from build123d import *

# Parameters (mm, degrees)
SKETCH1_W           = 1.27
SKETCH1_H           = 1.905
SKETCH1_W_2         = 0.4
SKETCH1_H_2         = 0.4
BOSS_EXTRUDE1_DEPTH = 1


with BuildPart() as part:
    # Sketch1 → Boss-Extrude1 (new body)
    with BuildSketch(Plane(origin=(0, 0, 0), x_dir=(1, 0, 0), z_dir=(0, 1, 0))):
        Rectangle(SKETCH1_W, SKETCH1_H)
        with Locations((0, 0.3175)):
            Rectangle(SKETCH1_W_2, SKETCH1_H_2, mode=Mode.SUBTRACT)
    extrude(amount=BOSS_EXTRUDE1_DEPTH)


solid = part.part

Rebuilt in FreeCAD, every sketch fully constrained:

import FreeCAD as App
import Part
import Sketcher
from FreeCAD import Vector
Q = App.Units.Quantity

doc = App.newDocument("Part")
body = doc.addObject("PartDesign::Body", "Body")

# Sketch on XZ plane
sketch1 = body.newObject("Sketcher::SketchObject", "Sketch")
sketch1.AttachmentSupport = (doc.getObject("XZ_Plane"), [""])
sketch1.MapMode = "FlatFace"
sketch1.addGeometry([
    Part.LineSegment(Vector(-0.635, -0.9525, 0), Vector(-0.635, 0.9525, 0)),  # 0
    Part.LineSegment(Vector(-0.635, 0.9525, 0), Vector(0.635, 0.9525, 0)),  # 1
    Part.LineSegment(Vector(0.635, 0.9525, 0), Vector(0.635, -0.9525, 0)),  # 2
    Part.LineSegment(Vector(0.635, -0.9525, 0), Vector(-0.635, -0.9525, 0)),  # 3
    Part.LineSegment(Vector(0.2, -0.1175, 0), Vector(-0.2, -0.1175, 0)),  # 4
    Part.LineSegment(Vector(-0.2, -0.1175, 0), Vector(-0.2, -0.5175, 0)),  # 5
    Part.LineSegment(Vector(-0.2, -0.5175, 0), Vector(0.2, -0.5175, 0)),  # 6
    Part.LineSegment(Vector(0.2, -0.5175, 0), Vector(0.2, -0.1175, 0)),  # 7
], False)
sketch1.addConstraint([
    Sketcher.Constraint("Coincident", 0, 2, 1, 1),
    Sketcher.Constraint("Coincident", 1, 2, 2, 1),
    Sketcher.Constraint("Coincident", 2, 2, 3, 1),
    Sketcher.Constraint("Coincident", 3, 2, 0, 1),
    Sketcher.Constraint("Coincident", 4, 2, 5, 1),
    Sketcher.Constraint("Coincident", 5, 2, 6, 1),
    Sketcher.Constraint("Coincident", 6, 2, 7, 1),
    Sketcher.Constraint("Coincident", 7, 2, 4, 1),
    Sketcher.Constraint("Vertical", 0),
    Sketcher.Constraint("Horizontal", 1),
    Sketcher.Constraint("Vertical", 2),
    Sketcher.Constraint("Horizontal", 3),
    Sketcher.Constraint("Horizontal", 4),
    Sketcher.Constraint("Vertical", 5),
    Sketcher.Constraint("Horizontal", 6),
    Sketcher.Constraint("Vertical", 7),
    Sketcher.Constraint("Symmetric", 0, 2, 2, 2, -1, 1),
    Sketcher.Constraint("Equal", 6, 5),
    Sketcher.Constraint("DistanceX", 4, 2, 4, 1, Q("0.4 mm")),
    Sketcher.Constraint("DistanceX", 1, 1, 1, 2, Q("1.27 mm")),
    Sketcher.Constraint("DistanceX", 4, 2, -1, 1, Q("0.2 mm")),
    Sketcher.Constraint("DistanceY", 0, 1, 0, 2, Q("1.905 mm")),
    Sketcher.Constraint("DistanceY", 4, 2, 0, 2, Q("1.07 mm")),
])
pad1 = body.newObject("PartDesign::Pad", "Pad")
pad1.Profile = sketch1
pad1.Length = 1
pad1.Reversed = True

doc.recompute()
